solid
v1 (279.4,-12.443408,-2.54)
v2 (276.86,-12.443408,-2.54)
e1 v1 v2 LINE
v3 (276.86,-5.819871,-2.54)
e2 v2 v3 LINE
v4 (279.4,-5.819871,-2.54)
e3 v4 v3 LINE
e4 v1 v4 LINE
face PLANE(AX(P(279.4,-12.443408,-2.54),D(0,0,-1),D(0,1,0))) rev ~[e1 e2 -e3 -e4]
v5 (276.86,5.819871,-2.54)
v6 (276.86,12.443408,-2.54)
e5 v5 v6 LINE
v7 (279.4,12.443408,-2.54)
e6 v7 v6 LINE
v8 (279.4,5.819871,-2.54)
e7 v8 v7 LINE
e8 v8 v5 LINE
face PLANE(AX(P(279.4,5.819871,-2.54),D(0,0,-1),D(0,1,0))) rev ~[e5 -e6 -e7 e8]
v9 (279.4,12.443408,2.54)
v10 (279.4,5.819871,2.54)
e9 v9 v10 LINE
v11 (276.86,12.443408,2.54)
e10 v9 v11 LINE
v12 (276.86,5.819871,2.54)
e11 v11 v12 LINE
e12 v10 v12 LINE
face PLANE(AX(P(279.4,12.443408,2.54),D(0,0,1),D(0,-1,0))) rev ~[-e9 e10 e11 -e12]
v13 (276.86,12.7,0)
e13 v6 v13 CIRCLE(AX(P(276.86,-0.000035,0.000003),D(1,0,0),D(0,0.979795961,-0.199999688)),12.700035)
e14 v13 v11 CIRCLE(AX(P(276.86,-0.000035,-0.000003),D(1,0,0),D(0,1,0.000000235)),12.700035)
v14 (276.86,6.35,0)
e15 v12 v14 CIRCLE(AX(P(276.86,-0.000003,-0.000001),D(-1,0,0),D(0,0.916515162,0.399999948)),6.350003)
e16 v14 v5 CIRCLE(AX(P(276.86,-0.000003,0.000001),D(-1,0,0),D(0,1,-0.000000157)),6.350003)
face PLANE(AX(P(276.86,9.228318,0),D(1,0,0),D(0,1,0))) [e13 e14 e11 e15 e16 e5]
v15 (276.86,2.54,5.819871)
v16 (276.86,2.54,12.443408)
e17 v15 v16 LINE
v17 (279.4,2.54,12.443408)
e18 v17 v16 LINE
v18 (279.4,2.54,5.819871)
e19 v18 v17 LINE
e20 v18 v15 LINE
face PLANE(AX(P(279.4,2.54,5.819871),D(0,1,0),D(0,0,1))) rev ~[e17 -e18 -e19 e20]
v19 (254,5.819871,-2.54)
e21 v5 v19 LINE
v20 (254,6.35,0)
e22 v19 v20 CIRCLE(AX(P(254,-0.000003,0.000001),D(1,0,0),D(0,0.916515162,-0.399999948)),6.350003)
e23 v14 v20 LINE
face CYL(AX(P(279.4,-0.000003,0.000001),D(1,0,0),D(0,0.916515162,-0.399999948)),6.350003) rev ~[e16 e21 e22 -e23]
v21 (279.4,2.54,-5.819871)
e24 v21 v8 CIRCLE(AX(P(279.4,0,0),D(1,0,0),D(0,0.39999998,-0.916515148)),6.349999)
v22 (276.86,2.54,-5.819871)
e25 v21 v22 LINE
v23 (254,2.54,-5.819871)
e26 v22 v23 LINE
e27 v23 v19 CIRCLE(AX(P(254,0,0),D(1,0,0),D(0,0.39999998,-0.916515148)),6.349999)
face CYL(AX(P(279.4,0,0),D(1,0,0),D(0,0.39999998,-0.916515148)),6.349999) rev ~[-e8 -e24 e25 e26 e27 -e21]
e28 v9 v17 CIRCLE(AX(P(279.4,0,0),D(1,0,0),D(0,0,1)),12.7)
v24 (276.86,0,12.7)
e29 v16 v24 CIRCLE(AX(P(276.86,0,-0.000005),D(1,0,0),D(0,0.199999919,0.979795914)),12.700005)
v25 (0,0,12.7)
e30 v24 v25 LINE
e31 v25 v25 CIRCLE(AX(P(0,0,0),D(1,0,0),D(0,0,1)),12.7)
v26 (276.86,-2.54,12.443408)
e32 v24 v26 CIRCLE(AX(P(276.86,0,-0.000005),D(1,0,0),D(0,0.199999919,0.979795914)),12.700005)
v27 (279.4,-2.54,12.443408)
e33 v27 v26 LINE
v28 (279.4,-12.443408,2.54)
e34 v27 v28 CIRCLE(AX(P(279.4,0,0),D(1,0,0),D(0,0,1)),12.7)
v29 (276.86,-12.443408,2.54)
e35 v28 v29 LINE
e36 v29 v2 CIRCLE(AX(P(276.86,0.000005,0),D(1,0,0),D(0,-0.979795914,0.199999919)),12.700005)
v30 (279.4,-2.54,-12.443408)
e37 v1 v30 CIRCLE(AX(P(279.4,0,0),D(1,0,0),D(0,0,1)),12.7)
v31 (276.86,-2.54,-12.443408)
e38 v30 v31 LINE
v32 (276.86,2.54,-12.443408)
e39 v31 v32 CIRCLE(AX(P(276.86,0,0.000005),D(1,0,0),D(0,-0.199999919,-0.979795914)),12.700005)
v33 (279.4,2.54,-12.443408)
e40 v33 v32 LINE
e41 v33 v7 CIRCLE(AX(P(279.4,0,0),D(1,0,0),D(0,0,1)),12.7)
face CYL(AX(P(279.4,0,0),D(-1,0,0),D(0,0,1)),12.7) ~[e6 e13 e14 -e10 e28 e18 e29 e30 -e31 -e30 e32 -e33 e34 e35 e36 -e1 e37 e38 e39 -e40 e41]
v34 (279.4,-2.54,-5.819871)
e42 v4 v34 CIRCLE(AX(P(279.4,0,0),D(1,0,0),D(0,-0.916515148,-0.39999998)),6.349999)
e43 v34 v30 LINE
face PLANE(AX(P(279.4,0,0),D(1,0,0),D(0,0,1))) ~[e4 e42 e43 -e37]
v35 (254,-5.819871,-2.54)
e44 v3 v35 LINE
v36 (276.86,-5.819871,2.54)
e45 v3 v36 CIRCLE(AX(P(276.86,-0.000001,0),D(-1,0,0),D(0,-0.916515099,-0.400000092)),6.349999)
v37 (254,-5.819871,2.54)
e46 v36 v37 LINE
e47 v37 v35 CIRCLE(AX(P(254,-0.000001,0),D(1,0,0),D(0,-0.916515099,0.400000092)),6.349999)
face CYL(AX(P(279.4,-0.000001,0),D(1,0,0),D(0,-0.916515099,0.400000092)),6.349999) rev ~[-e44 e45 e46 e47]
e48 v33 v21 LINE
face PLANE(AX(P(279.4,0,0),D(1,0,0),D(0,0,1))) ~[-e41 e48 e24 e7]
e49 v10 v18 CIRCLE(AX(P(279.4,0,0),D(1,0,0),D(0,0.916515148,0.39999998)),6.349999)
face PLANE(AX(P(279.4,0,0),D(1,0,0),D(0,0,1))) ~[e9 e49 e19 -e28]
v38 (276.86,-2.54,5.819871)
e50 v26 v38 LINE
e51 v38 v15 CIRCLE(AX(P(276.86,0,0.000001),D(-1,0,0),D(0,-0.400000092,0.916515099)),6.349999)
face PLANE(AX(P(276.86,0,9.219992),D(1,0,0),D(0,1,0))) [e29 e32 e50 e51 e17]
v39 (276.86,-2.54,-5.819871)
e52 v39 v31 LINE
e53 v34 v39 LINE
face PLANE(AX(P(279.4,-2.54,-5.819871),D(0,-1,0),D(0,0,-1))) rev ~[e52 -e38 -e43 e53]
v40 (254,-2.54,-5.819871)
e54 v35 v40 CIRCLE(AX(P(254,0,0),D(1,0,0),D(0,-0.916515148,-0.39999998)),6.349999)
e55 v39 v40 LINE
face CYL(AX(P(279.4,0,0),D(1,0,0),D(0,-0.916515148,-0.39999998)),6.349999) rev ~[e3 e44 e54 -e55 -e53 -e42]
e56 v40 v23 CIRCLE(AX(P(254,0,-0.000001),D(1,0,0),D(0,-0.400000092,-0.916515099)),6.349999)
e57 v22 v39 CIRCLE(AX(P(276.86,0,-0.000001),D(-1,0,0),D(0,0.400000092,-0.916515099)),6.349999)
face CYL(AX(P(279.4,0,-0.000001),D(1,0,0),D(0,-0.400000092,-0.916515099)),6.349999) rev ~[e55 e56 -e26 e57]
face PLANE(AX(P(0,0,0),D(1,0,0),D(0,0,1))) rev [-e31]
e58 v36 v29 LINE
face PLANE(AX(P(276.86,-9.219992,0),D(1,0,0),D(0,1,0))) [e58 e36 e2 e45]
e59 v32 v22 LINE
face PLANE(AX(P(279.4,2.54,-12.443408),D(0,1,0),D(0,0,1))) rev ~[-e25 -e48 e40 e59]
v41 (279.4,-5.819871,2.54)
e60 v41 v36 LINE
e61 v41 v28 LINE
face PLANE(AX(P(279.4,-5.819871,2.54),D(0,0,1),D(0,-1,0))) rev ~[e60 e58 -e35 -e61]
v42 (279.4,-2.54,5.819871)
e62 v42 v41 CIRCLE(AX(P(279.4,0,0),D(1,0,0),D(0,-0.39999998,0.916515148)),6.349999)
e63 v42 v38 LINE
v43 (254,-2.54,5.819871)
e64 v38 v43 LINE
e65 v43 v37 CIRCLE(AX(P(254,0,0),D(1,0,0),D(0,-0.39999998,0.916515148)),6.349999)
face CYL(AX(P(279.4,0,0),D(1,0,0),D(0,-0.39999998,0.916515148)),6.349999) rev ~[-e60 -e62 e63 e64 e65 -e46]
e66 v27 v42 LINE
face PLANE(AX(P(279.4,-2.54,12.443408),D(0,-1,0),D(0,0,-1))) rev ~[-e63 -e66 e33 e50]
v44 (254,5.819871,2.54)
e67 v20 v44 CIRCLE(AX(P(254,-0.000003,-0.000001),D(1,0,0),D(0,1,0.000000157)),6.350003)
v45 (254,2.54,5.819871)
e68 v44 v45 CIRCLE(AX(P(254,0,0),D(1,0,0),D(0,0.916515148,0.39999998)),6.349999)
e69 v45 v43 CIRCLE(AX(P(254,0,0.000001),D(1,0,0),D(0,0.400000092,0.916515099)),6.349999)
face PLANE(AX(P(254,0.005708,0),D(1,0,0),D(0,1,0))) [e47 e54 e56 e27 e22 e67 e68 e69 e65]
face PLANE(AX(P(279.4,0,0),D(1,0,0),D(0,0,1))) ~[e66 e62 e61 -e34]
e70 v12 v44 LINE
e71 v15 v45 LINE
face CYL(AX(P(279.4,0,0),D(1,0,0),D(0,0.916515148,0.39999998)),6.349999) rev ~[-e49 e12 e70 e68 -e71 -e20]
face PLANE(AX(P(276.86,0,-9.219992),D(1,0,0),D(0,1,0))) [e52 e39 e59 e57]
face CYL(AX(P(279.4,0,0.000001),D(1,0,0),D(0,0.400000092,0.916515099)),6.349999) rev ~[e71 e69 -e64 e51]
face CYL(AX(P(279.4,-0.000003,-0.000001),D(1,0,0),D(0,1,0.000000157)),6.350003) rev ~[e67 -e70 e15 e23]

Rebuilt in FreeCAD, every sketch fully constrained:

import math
import FreeCAD as App
import Part
import Sketcher
from FreeCAD import Vector
Q = App.Units.Quantity


def add_polygon(sketch, points):
    """Adds a closed chain of lines whose ends are joined by coincident constraints."""
    first, n = sketch.GeometryCount, len(points)
    for a, b in zip(points, points[1:] + points[:1]):
        sketch.addGeometry(Part.LineSegment(App.Vector(*a, 0), App.Vector(*b, 0)), False)
    for i in range(n):
        sketch.addConstraint(Sketcher.Constraint("Coincident", first + i, 2, first + (i + 1) % n, 1))

doc = App.newDocument("Part")
body = doc.addObject("PartDesign::Body", "Body")

# Sketch on XZ plane
sketch1 = body.newObject("Sketcher::SketchObject", "Sketch")
sketch1.AttachmentSupport = (doc.getObject("XZ_Plane"), [""])
sketch1.MapMode = "FlatFace"
add_polygon(sketch1, [(0, 13), (0, 0), (279, 0), (279, 13)])  # lines 0-3
sketch1.addConstraint(Sketcher.Constraint("Vertical", 0))
sketch1.addConstraint(Sketcher.Constraint("Horizontal", 1))
sketch1.addConstraint(Sketcher.Constraint("Vertical", 2))
sketch1.addConstraint(Sketcher.Constraint("Horizontal", 3))
sketch1.addConstraint(Sketcher.Constraint("Coincident", 0, 2, -1, 1))
sketch1.addConstraint(Sketcher.Constraint("DistanceX", 1, 1, 1, 2, Q("11 in")))
sketch1.addConstraint(Sketcher.Constraint("DistanceY", 0, 2, 0, 1, Q("0.5 in")))
revolution = body.newObject("PartDesign::Revolution", "Revolution")
revolution.Profile = sketch1
revolution.ReferenceAxis = (sketch1, ["H_Axis"])
revolution.Angle = 360

# Sketch on YZ plane
sketch2 = body.newObject("Sketcher::SketchObject", "Sketch001")
sketch2.AttachmentSupport = (doc.getObject("YZ_Plane"), [""])
sketch2.MapMode = "FlatFace"
sketch2.AttachmentOffset = App.Placement(Vector(0, 0, 11 * 25.4), App.Rotation())
sketch2.addGeometry(Part.ArcOfCircle(Part.Circle(Vector(0, 0.000001, 0), Vector(0, 0, 1), 6.349999), math.radians(66.421816), math.radians(113.578184)), False)
sketch2.addGeometry(Part.LineSegment(Vector(2.54, 5.819871, 0), Vector(2.54, 12.443408, 0)), False)
sketch2.addGeometry(Part.ArcOfCircle(Part.Circle(Vector(0, -0.000005, 0), Vector(0, 0, 1), 12.700005), math.radians(78.463046), math.radians(101.536954)), False)
sketch2.addGeometry(Part.LineSegment(Vector(-2.54, 12.443408, 0), Vector(-2.54, 5.819871, 0)), False)
sketch2.addGeometry(Part.ArcOfCircle(Part.Circle(Vector(-0.000001, 0, 0), Vector(0, 0, 1), 6.349999), math.radians(156.421816), math.radians(203.578184)), False)
sketch2.addGeometry(Part.LineSegment(Vector(-5.819871, 2.54, 0), Vector(-12.443408, 2.54, 0)), False)
sketch2.addGeometry(Part.ArcOfCircle(Part.Circle(Vector(0.000005, 0, 0), Vector(0, 0, 1), 12.700005), math.radians(168.463046), math.radians(191.536954)), False)
sketch2.addGeometry(Part.LineSegment(Vector(-12.443408, -2.54, 0), Vector(-5.819871, -2.54, 0)), False)
sketch2.addGeometry(Part.LineSegment(Vector(2.54, -12.443408, 0), Vector(2.54, -5.819871, 0)), False)
sketch2.addGeometry(Part.ArcOfCircle(Part.Circle(Vector(0, -0.000001, 0), Vector(0, 0, 1), 6.349999), math.radians(-113.578184), math.radians(-66.421816)), False)
sketch2.addGeometry(Part.LineSegment(Vector(-2.54, -5.819871, 0), Vector(-2.54, -12.443408, 0)), False)
sketch2.addGeometry(Part.ArcOfCircle(Part.Circle(Vector(0, 0.000005, 0), Vector(0, 0, 1), 12.700005), math.radians(-101.536954), math.radians(-78.463046)), False)
sketch2.addGeometry(Part.ArcOfCircle(Part.Circle(Vector(-0.000003, -0.000001, 0), Vector(0, 0, 1), 6.350003), math.radians(0.000009), math.radians(23.578175)), False)
sketch2.addGeometry(Part.ArcOfCircle(Part.Circle(Vector(-0.000003, 0.000001, 0), Vector(0, 0, 1), 6.350003), math.radians(-23.578175), math.radians(-0.000009)), False)
sketch2.addGeometry(Part.LineSegment(Vector(5.819871, -2.54, 0), Vector(12.443408, -2.54, 0)), False)
sketch2.addGeometry(Part.ArcOfCircle(Part.Circle(Vector(-0.000035, 0.000003, 0), Vector(0, 0, 1), 12.700035), math.radians(-11.536941), math.radians(-0.000013)), False)
sketch2.addGeometry(Part.ArcOfCircle(Part.Circle(Vector(-0.000035, -0.000003, 0), Vector(0, 0, 1), 12.700035), math.radians(0.000013), math.radians(11.536941)), False)
sketch2.addGeometry(Part.LineSegment(Vector(12.443408, 2.54, 0), Vector(5.819871, 2.54, 0)), False)
sketch2.addConstraint(Sketcher.Constraint("Coincident", 0, 1, 1, 1))
sketch2.addConstraint(Sketcher.Constraint("Coincident", 1, 2, 2, 1))
sketch2.addConstraint(Sketcher.Constraint("Coincident", 2, 2, 3, 1))
sketch2.addConstraint(Sketcher.Constraint("Coincident", 3, 2, 0, 2))
sketch2.addConstraint(Sketcher.Constraint("Coincident", 4, 1, 5, 1))
sketch2.addConstraint(Sketcher.Constraint("Coincident", 5, 2, 6, 1))
sketch2.addConstraint(Sketcher.Constraint("Coincident", 6, 2, 7, 1))
sketch2.addConstraint(Sketcher.Constraint("Coincident", 7, 2, 4, 2))
sketch2.addConstraint(Sketcher.Constraint("Coincident", 8, 2, 9, 2))
sketch2.addConstraint(Sketcher.Constraint("Coincident", 9, 1, 10, 1))
sketch2.addConstraint(Sketcher.Constraint("Coincident", 10, 2, 11, 1))
sketch2.addConstraint(Sketcher.Constraint("Coincident", 11, 2, 8, 1))
sketch2.addConstraint(Sketcher.Constraint("Coincident", 12, 1, 13, 2))
sketch2.addConstraint(Sketcher.Constraint("Coincident", 13, 1, 14, 1))
sketch2.addConstraint(Sketcher.Constraint("Coincident", 14, 2, 15, 1))
sketch2.addConstraint(Sketcher.Constraint("Coincident", 15, 2, 16, 1))
sketch2.addConstraint(Sketcher.Constraint("Coincident", 16, 2, 17, 1))
sketch2.addConstraint(Sketcher.Constraint("Coincident", 17, 2, 12, 2))
sketch2.addConstraint(Sketcher.Constraint("Vertical", 1))
sketch2.addConstraint(Sketcher.Constraint("Vertical", 3))
sketch2.addConstraint(Sketcher.Constraint("Horizontal", 5))
sketch2.addConstraint(Sketcher.Constraint("Horizontal", 7))
sketch2.addConstraint(Sketcher.Constraint("Vertical", 8))
sketch2.addConstraint(Sketcher.Constraint("Vertical", 10))
sketch2.addConstraint(Sketcher.Constraint("Horizontal", 14))
sketch2.addConstraint(Sketcher.Constraint("Horizontal", 17))
sketch2.addConstraint(Sketcher.Constraint("Coincident", 0, 3, -1, 1))
sketch2.addConstraint(Sketcher.Constraint("Coincident", 2, 3, -1, 1))
sketch2.addConstraint(Sketcher.Constraint("Coincident", 4, 3, -1, 1))
sketch2.addConstraint(Sketcher.Constraint("Coincident", 6, 3, -1, 1))
sketch2.addConstraint(Sketcher.Constraint("Coincident", 9, 3, -1, 1))
sketch2.addConstraint(Sketcher.Constraint("Coincident", 11, 3, -1, 1))
sketch2.addConstraint(Sketcher.Constraint("Coincident", 12, 3, -1, 1))
sketch2.addConstraint(Sketcher.Constraint("Coincident", 13, 3, -1, 1))
sketch2.addConstraint(Sketcher.Constraint("Coincident", 16, 3, 15, 3))
sketch2.addConstraint(Sketcher.Constraint("PointOnObject", 12, 1, -1))
sketch2.addConstraint(Sketcher.Constraint("PointOnObject", 15, 2, -1))
sketch2.addConstraint(Sketcher.Constraint("Radius", 0, Q("0.2499999 in")))
sketch2.addConstraint(Sketcher.Constraint("Radius", 4, Q("0.2499999 in")))
sketch2.addConstraint(Sketcher.Constraint("Radius", 9, Q("0.2499999 in")))
sketch2.addConstraint(Sketcher.Constraint("Radius", 12, Q("0.2500001 in")))
sketch2.addConstraint(Sketcher.Constraint("DistanceX", -1, 1, 0, 1, Q("0.1 in")))
sketch2.addConstraint(Sketcher.Constraint("DistanceX", 2, 2, -1, 1, Q("0.1 in")))
sketch2.addConstraint(Sketcher.Constraint("DistanceY", -1, 1, 4, 1, Q("0.1 in")))
sketch2.addConstraint(Sketcher.Constraint("DistanceY", 6, 2, -1, 1, Q("0.1 in")))
sketch2.addConstraint(Sketcher.Constraint("DistanceX", -1, 1, 8, 2, Q("0.1 in")))
sketch2.addConstraint(Sketcher.Constraint("DistanceX", 9, 1, -1, 1, Q("0.1 in")))
sketch2.addConstraint(Sketcher.Constraint("DistanceY", 13, 1, -1, 1, Q("0.1 in")))
sketch2.addConstraint(Sketcher.Constraint("DistanceX", -1, 1, 15, 2, Q("0.5 in")))
sketch2.addConstraint(Sketcher.Constraint("DistanceY", -1, 1, 16, 2, Q("0.1 in")))
sketch2.addConstraint(Sketcher.Constraint("DistanceY", 15, 3, 4, 1, Q("0.0999999 in")))
sketch2.addConstraint(Sketcher.Constraint("Radius", 2, 12.700005))
sketch2.addConstraint(Sketcher.Constraint("Radius", 6, 12.700005))
sketch2.addConstraint(Sketcher.Constraint("Radius", 11, 12.700005))
sketch2.addConstraint(Sketcher.Constraint("Radius", 15, 12.700035))
pocket1 = body.newObject("PartDesign::Pocket", "Pocket")
pocket1.Profile = sketch2
pocket1.Length = Q("0.1 in")

# Sketch on YZ plane
sketch3 = body.newObject("Sketcher::SketchObject", "Sketch002")
sketch3.AttachmentSupport = (doc.getObject("YZ_Plane"), [""])
sketch3.MapMode = "FlatFace"
sketch3.AttachmentOffset = App.Placement(Vector(0, 0, 11 * 25.4), App.Rotation())
sketch3.addGeometry(Part.ArcOfCircle(Part.Circle(Vector(0, 0, 0), Vector(0, 0, 1), 6.4), math.radians(-24), math.radians(0)), False)
sketch3.addGeometry(Part.ArcOfCircle(Part.Circle(Vector(0, 0, 0), Vector(0, 0, 1), 6.4), math.radians(0), math.radians(24)), False)
sketch3.addGeometry(Part.ArcOfCircle(Part.Circle(Vector(0, 0, 0), Vector(0, 0, 1), 6.3), math.radians(24), math.radians(66)), False)
sketch3.addGeometry(Part.ArcOfCircle(Part.Circle(Vector(0, 0, 0), Vector(0, 0, 1), 6.3), math.radians(66), math.radians(114)), False)
sketch3.addGeometry(Part.ArcOfCircle(Part.Circle(Vector(0, 0, 0), Vector(0, 0, 1), 6.3), math.radians(114), math.radians(156)), False)
sketch3.addGeometry(Part.ArcOfCircle(Part.Circle(Vector(0, 0, 0), Vector(0, 0, 1), 6.3), math.radians(156), math.radians(204)), False)
sketch3.addGeometry(Part.ArcOfCircle(Part.Circle(Vector(0, 0, 0), Vector(0, 0, 1), 6.3), math.radians(-156), math.radians(-114)), False)
sketch3.addGeometry(Part.ArcOfCircle(Part.Circle(Vector(0, 0, 0), Vector(0, 0, 1), 6.3), math.radians(-114), math.radians(-66)), False)
sketch3.addGeometry(Part.ArcOfCircle(Part.Circle(Vector(0, 0, 0), Vector(0, 0, 1), 6.3), math.radians(-66), math.radians(-24)), False)
sketch3.addConstraint(Sketcher.Constraint("Tangent", 0, 2, 1, 1))
sketch3.addConstraint(Sketcher.Constraint("Tangent", 1, 2, 2, 1))
sketch3.addConstraint(Sketcher.Constraint("Tangent", 2, 2, 3, 1))
sketch3.addConstraint(Sketcher.Constraint("Tangent", 3, 2, 4, 1))
sketch3.addConstraint(Sketcher.Constraint("Tangent", 4, 2, 5, 1))
sketch3.addConstraint(Sketcher.Constraint("Tangent", 5, 2, 6, 1))
sketch3.addConstraint(Sketcher.Constraint("Tangent", 6, 2, 7, 1))
sketch3.addConstraint(Sketcher.Constraint("Tangent", 7, 2, 8, 1))
sketch3.addConstraint(Sketcher.Constraint("Tangent", 8, 2, 0, 1))
sketch3.addConstraint(Sketcher.Constraint("Coincident", 0, 3, -1, 1))
sketch3.addConstraint(Sketcher.Constraint("Coincident", 2, 3, -1, 1))
sketch3.addConstraint(Sketcher.Constraint("Coincident", 4, 3, -1, 1))
sketch3.addConstraint(Sketcher.Constraint("Coincident", 6, 3, -1, 1))
sketch3.addConstraint(Sketcher.Constraint("PointOnObject", 0, 2, -1))
sketch3.addConstraint(Sketcher.Constraint("Horizontal", 2, 2, 3, 2))
sketch3.addConstraint(Sketcher.Constraint("Horizontal", 1, 2, 4, 2))
sketch3.addConstraint(Sketcher.Constraint("Horizontal", 6, 2, 7, 2))
sketch3.addConstraint(Sketcher.Constraint("Horizontal", 5, 2, 8, 2))
sketch3.addConstraint(Sketcher.Constraint("Vertical", 4, 2, 5, 2))
sketch3.addConstraint(Sketcher.Constraint("Vertical", 3, 2, 6, 2))
sketch3.addConstraint(Sketcher.Constraint("Radius", 0, Q("0.2500001 in")))
sketch3.addConstraint(Sketcher.Constraint("DistanceY", -1, 1, 1, 2, Q("0.1 in")))
sketch3.addConstraint(Sketcher.Constraint("DistanceX", -1, 1, 2, 2, Q("0.1 in")))
pocket2 = body.newObject("PartDesign::Pocket", "Pocket001")
pocket2.Profile = sketch3
pocket2.Length = Q("1 in")

doc.recompute()
